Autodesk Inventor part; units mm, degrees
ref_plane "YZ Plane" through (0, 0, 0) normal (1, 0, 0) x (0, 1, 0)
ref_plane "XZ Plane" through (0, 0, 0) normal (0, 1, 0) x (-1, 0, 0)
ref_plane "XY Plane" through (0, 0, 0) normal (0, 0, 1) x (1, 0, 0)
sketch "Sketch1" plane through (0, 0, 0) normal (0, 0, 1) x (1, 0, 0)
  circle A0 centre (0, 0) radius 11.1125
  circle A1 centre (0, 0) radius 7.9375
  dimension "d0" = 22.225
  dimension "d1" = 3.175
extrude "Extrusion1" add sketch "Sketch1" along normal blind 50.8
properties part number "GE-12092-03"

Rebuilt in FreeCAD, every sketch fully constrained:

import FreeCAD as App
import Part
import Sketcher
Q = App.Units.Quantity

doc = App.newDocument("Part")
body = doc.addObject("PartDesign::Body", "Body")

# Sketch on XY plane
sketch1 = body.newObject("Sketcher::SketchObject", "Sketch")
sketch1.AttachmentSupport = (doc.getObject("XY_Plane"), [""])
sketch1.MapMode = "FlatFace"
sketch1.addGeometry([
    Part.Circle(App.Vector(0, 0, 0), App.Vector(0, 0, 1), 11),
    Part.Circle(App.Vector(0, 0, 0), App.Vector(0, 0, 1), 8),
], False)
sketch1.addConstraint([
    Sketcher.Constraint("Coincident", 0, 3, -1, 1),
    Sketcher.Constraint("Coincident", 1, 3, -1, 1),
    Sketcher.Constraint("Diameter", 0, Q("0.875 in")),
    Sketcher.Constraint("Diameter", 1, Q("0.625 in")),
])
pad1 = body.newObject("PartDesign::Pad", "Pad")
pad1.Profile = sketch1
pad1.Length = Q("2 in")

doc.recompute()
